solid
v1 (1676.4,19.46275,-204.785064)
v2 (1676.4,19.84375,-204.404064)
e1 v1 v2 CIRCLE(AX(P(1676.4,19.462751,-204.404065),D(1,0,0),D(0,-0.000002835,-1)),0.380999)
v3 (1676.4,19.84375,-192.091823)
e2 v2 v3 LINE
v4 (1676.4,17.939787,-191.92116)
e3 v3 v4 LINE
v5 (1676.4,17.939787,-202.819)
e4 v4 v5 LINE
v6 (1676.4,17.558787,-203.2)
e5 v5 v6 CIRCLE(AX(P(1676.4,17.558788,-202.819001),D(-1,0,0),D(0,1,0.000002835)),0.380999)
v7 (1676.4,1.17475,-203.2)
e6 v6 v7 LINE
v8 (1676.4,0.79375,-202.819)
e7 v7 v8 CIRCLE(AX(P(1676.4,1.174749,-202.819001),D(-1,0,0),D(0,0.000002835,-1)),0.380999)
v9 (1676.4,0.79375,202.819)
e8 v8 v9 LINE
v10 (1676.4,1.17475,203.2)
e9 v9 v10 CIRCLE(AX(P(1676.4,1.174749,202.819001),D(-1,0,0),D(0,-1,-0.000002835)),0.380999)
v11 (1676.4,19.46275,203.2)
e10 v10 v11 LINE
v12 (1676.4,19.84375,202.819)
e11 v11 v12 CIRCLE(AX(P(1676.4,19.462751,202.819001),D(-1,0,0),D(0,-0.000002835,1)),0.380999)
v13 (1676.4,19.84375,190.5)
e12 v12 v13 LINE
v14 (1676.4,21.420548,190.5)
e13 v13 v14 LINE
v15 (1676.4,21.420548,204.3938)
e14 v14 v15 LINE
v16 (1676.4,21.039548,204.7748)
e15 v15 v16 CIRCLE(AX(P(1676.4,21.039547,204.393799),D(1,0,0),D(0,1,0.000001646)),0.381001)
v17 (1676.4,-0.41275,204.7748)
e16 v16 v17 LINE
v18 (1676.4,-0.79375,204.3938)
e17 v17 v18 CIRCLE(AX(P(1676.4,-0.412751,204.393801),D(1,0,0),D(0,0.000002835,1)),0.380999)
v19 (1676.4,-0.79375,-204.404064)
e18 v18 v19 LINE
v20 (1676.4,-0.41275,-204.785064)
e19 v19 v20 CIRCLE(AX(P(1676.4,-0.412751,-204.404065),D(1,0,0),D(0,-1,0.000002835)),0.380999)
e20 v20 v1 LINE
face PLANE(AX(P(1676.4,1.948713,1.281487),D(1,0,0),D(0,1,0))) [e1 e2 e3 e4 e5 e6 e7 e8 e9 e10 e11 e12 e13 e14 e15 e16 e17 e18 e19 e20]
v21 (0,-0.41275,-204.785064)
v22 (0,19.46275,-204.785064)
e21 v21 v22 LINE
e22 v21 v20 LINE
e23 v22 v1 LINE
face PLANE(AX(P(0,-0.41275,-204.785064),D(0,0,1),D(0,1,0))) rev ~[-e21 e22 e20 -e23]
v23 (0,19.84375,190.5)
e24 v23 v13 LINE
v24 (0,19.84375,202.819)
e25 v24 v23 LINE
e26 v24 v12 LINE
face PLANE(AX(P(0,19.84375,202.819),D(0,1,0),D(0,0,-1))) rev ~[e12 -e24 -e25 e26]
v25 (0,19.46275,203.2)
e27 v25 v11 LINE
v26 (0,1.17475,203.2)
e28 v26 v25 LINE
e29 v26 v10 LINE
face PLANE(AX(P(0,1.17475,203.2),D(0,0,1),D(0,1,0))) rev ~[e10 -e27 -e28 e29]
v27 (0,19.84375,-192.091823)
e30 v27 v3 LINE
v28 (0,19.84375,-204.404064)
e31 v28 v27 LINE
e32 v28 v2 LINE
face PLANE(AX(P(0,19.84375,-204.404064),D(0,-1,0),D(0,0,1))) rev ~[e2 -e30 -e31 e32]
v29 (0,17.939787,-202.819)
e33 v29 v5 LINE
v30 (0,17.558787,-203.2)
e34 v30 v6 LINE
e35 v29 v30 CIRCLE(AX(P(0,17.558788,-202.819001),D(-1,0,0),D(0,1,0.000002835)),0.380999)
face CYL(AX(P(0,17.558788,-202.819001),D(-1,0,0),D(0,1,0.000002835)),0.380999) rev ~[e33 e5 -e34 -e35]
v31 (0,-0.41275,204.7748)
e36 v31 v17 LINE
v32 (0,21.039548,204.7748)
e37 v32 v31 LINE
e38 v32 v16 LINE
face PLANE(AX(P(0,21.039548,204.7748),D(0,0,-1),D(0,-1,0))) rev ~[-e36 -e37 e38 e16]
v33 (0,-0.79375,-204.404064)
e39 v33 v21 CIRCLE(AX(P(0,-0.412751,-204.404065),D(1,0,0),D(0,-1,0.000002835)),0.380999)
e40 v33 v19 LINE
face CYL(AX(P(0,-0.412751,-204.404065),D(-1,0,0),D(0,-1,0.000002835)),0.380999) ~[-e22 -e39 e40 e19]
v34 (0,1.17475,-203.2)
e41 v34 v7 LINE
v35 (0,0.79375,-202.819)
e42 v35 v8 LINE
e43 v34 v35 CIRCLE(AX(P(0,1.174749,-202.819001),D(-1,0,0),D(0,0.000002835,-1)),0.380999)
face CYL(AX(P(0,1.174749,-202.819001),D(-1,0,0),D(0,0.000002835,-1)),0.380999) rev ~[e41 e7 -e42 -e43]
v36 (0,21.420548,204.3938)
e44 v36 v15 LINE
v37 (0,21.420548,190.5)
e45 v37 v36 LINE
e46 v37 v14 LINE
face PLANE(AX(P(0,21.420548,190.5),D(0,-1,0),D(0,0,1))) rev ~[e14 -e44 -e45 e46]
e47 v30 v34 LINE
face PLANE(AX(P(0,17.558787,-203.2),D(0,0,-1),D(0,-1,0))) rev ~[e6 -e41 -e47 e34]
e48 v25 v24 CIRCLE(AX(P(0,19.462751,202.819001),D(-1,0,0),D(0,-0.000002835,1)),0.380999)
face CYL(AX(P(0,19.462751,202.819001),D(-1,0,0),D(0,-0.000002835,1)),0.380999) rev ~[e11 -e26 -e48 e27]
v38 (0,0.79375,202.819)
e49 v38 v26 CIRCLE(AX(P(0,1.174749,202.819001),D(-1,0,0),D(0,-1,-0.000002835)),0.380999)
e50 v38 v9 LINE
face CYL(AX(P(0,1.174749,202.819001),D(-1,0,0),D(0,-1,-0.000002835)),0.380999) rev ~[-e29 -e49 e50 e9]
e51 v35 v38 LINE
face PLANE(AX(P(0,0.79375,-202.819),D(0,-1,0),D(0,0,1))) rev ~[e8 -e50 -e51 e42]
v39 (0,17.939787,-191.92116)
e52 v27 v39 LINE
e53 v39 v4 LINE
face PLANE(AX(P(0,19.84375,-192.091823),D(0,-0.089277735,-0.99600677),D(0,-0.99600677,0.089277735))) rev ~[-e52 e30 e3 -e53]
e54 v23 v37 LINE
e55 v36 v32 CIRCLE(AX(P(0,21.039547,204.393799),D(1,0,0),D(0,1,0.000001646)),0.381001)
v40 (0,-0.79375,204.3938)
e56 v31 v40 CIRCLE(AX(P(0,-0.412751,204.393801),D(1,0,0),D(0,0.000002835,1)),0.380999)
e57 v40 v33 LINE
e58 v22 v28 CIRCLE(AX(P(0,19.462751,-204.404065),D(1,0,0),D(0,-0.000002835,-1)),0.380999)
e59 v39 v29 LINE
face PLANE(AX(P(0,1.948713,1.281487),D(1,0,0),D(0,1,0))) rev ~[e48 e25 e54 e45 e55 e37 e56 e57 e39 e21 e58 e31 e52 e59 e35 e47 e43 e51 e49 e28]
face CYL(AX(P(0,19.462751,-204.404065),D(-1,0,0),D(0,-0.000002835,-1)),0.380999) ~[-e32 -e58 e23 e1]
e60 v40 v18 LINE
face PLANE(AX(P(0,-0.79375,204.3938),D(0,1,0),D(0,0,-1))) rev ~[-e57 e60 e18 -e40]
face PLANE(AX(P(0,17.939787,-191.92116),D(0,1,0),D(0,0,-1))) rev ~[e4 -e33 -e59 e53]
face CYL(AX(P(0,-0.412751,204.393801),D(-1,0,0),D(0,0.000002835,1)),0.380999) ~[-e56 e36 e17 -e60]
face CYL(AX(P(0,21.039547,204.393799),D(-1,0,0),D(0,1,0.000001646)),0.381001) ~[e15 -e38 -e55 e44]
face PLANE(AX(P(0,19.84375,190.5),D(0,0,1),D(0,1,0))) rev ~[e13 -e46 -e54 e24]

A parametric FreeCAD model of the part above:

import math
import FreeCAD as App
import Part
import Sketcher

V = App.Vector
Q = App.Units.Quantity

doc = App.newDocument("Part")
params = doc.addObject("Spreadsheet::Sheet", "Params")
for row, (alias, value) in enumerate([
    ("sketch1_radius", "0.015 in"),
    ("sketch1_width", "0.72 in"),
    ("sketch1_height", "0.547 in"),
    ("pad1_length", "66 in"),
], start=1):
    params.set(f"A{row}", alias)
    params.set(f"B{row}", "=" + value)
    params.setAlias(f"B{row}", alias)

body = doc.addObject("PartDesign::Body", "Body")

# Sketch on YZ plane
sketch1 = body.newObject("Sketcher::SketchObject", "Sketch")
sketch1.AttachmentSupport = (doc.getObject("YZ_Plane"), [""])
sketch1.MapMode = "FlatFace"
sketch1.addGeometry(Part.ArcOfCircle(Part.Circle(V(1.17, -202.82, 0), V(0, 0, 1), 0.38), math.radians(180), math.radians(270)), False)
sketch1.addGeometry(Part.LineSegment(V(0.79, -202.82, 0), V(0.79, 202.82, 0)), False)
sketch1.addGeometry(Part.ArcOfCircle(Part.Circle(V(1.17, 202.82, 0), V(0, 0, 1), 0.38), math.radians(90), math.radians(180)), False)
sketch1.addGeometry(Part.LineSegment(V(1.17, 203.2, 0), V(19.46, 203.2, 0)), False)
sketch1.addGeometry(Part.ArcOfCircle(Part.Circle(V(19.46, 202.82, 0), V(0, 0, 1), 0.38), math.radians(0), math.radians(90)), False)
sketch1.addGeometry(Part.LineSegment(V(19.84, 202.82, 0), V(19.84, 190.5, 0)), False)
sketch1.addGeometry(Part.LineSegment(V(19.84, 190.5, 0), V(21.42, 190.5, 0)), False)
sketch1.addGeometry(Part.LineSegment(V(21.42, 190.5, 0), V(21.42, 204.39, 0)), False)
sketch1.addGeometry(Part.ArcOfCircle(Part.Circle(V(21.04, 204.39, 0), V(0, 0, 1), 0.38), math.radians(0), math.radians(90)), False)
sketch1.addGeometry(Part.LineSegment(V(21.04, 204.77, 0), V(-0.41, 204.77, 0)), False)
sketch1.addGeometry(Part.ArcOfCircle(Part.Circle(V(-0.41, 204.39, 0), V(0, 0, 1), 0.38), math.radians(90), math.radians(180)), False)
sketch1.addGeometry(Part.LineSegment(V(-0.79, 204.39, 0), V(-0.79, -204.4, 0)), False)
sketch1.addGeometry(Part.ArcOfCircle(Part.Circle(V(-0.41, -204.4, 0), V(0, 0, 1), 0.38), math.radians(180), math.radians(270)), False)
sketch1.addGeometry(Part.LineSegment(V(-0.41, -204.79, 0), V(19.46, -204.79, 0)), False)
sketch1.addGeometry(Part.ArcOfCircle(Part.Circle(V(19.46, -204.4, 0), V(0, 0, 1), 0.38), math.radians(-90), math.radians(0)), False)
sketch1.addGeometry(Part.LineSegment(V(19.84, -204.4, 0), V(19.84, -192.09, 0)), False)
sketch1.addGeometry(Part.LineSegment(V(19.84, -192.09, 0), V(17.94, -191.92, 0)), False)
sketch1.addGeometry(Part.LineSegment(V(17.94, -191.92, 0), V(17.94, -202.82, 0)), False)
sketch1.addGeometry(Part.ArcOfCircle(Part.Circle(V(17.56, -202.82, 0), V(0, 0, 1), 0.38), math.radians(-90), math.radians(0)), False)
sketch1.addGeometry(Part.LineSegment(V(17.56, -203.2, 0), V(1.17, -203.2, 0)), False)
sketch1.addConstraint(Sketcher.Constraint("Coincident", 0, 1, 1, 1))
sketch1.addConstraint(Sketcher.Constraint("Coincident", 1, 2, 2, 2))
sketch1.addConstraint(Sketcher.Constraint("Coincident", 2, 1, 3, 1))
sketch1.addConstraint(Sketcher.Constraint("Coincident", 3, 2, 4, 2))
sketch1.addConstraint(Sketcher.Constraint("Coincident", 4, 1, 5, 1))
sketch1.addConstraint(Sketcher.Constraint("Coincident", 5, 2, 6, 1))
sketch1.addConstraint(Sketcher.Constraint("Coincident", 6, 2, 7, 1))
sketch1.addConstraint(Sketcher.Constraint("Tangent", 7, 2, 8, 1))
sketch1.addConstraint(Sketcher.Constraint("Tangent", 8, 2, 9, 1))
sketch1.addConstraint(Sketcher.Constraint("Coincident", 9, 2, 10, 1))
sketch1.addConstraint(Sketcher.Constraint("Coincident", 10, 2, 11, 1))
sketch1.addConstraint(Sketcher.Constraint("Coincident", 11, 2, 12, 1))
sketch1.addConstraint(Sketcher.Constraint("Coincident", 12, 2, 13, 1))
sketch1.addConstraint(Sketcher.Constraint("Coincident", 13, 2, 14, 1))
sketch1.addConstraint(Sketcher.Constraint("Coincident", 14, 2, 15, 1))
sketch1.addConstraint(Sketcher.Constraint("Coincident", 15, 2, 16, 1))
sketch1.addConstraint(Sketcher.Constraint("Coincident", 16, 2, 17, 1))
sketch1.addConstraint(Sketcher.Constraint("Coincident", 17, 2, 18, 2))
sketch1.addConstraint(Sketcher.Constraint("Coincident", 18, 1, 19, 1))
sketch1.addConstraint(Sketcher.Constraint("Coincident", 19, 2, 0, 2))
sketch1.addConstraint(Sketcher.Constraint("Vertical", 1))
sketch1.addConstraint(Sketcher.Constraint("Horizontal", 3))
sketch1.addConstraint(Sketcher.Constraint("Vertical", 5))
sketch1.addConstraint(Sketcher.Constraint("Horizontal", 6))
sketch1.addConstraint(Sketcher.Constraint("Vertical", 7))
sketch1.addConstraint(Sketcher.Constraint("Horizontal", 9))
sketch1.addConstraint(Sketcher.Constraint("Vertical", 11))
sketch1.addConstraint(Sketcher.Constraint("Horizontal", 13))
sketch1.addConstraint(Sketcher.Constraint("Vertical", 15))
sketch1.addConstraint(Sketcher.Constraint("Vertical", 17))
sketch1.addConstraint(Sketcher.Constraint("Horizontal", 19))
sketch1.addConstraint(Sketcher.Constraint("Equal", 0, 2))
sketch1.addConstraint(Sketcher.Constraint("Equal", 2, 4))
sketch1.addConstraint(Sketcher.Constraint("Equal", 4, 8))
sketch1.addConstraint(Sketcher.Constraint("Equal", 8, 10))
sketch1.addConstraint(Sketcher.Constraint("Equal", 10, 12))
sketch1.addConstraint(Sketcher.Constraint("Equal", 12, 14))
sketch1.addConstraint(Sketcher.Constraint("Equal", 14, 18))
sketch1.addConstraint(Sketcher.Constraint("Symmetric", 2, 1, 19, 2, -1))
sketch1.addConstraint(Sketcher.Constraint("Horizontal", 18, 3, 0, 1))
sketch1.addConstraint(Sketcher.Constraint("Horizontal", 4, 3, 1, 2))
sketch1.addConstraint(Sketcher.Constraint("Horizontal", 1, 2, 4, 1))
sketch1.addConstraint(Sketcher.Constraint("Horizontal", 7, 2, 10, 2))
sketch1.addConstraint(Sketcher.Constraint("Horizontal", 14, 3, 11, 2))
sketch1.addConstraint(Sketcher.Constraint("Horizontal", 11, 2, 14, 2))
sketch1.addConstraint(Sketcher.Constraint("Horizontal", 0, 1, 17, 2))
sketch1.addConstraint(Sketcher.Constraint("Vertical", 4, 3, 14, 3))
sketch1.addConstraint(Sketcher.Constraint("Vertical", 0, 3, 2, 1))
sketch1.addConstraint(Sketcher.Constraint("Vertical", 14, 3, 3, 2))
sketch1.addConstraint(Sketcher.Constraint("Vertical", 12, 3, 9, 2))
sketch1.addConstraint(Sketcher.Constraint("Vertical", 9, 2, 12, 2))
sketch1.addConstraint(Sketcher.Constraint("Vertical", 3, 2, 13, 2))
sketch1.addConstraint(Sketcher.Constraint("DistanceY", -1, 1, 2, 1, Q("8 in")))
sketch1.addConstraint(Sketcher.Constraint("Radius", 0, Q("0.015 in")))
sketch1.addConstraint(Sketcher.Constraint("DistanceX", 3, 1, 3, 2, Q("0.72 in")))
sketch1.addConstraint(Sketcher.Constraint("DistanceY", -1, 1, 5, 2, Q("7.5 in")))
sketch1.addConstraint(Sketcher.Constraint("DistanceY", 7, 1, 7, 2, Q("0.547 in")))
sketch1.addConstraint(Sketcher.Constraint("DistanceX", 13, 1, 13, 2, Q("0.7825 in")))
sketch1.addConstraint(Sketcher.Constraint("DistanceX", -1, 1, 0, 1, Q("0.03125 in")))
sketch1.addConstraint(Sketcher.Constraint("DistanceX", 18, 1, 17, 2, Q("0.015 in")))
sketch1.addConstraint(Sketcher.Constraint("DistanceX", 6, 1, 6, 2, Q("1.576798 mm")))
sketch1.addConstraint(Sketcher.Constraint("DistanceY", 15, 1, 15, 2, Q("12.312241 mm")))
sketch1.addConstraint(Sketcher.Constraint("DistanceY", 17, 2, 17, 1, Q("10.89784 mm")))
sketch1.addConstraint(Sketcher.Constraint("DistanceX", 19, 2, 19, 1, Q("16.384037 mm")))
sketch1.addConstraint(Sketcher.Constraint("DistanceY", 11, 2, 11, 1, Q("408.797864 mm")))
sketch1.setExpression("Constraints[53]", "Params.sketch1_radius")
sketch1.setExpression("Constraints[54]", "Params.sketch1_width")
sketch1.setExpression("Constraints[56]", "Params.sketch1_height")
pad1 = body.newObject("PartDesign::Pad", "Pad")
pad1.Profile = sketch1
pad1.setExpression("Length", "Params.pad1_length")

doc.recompute()
